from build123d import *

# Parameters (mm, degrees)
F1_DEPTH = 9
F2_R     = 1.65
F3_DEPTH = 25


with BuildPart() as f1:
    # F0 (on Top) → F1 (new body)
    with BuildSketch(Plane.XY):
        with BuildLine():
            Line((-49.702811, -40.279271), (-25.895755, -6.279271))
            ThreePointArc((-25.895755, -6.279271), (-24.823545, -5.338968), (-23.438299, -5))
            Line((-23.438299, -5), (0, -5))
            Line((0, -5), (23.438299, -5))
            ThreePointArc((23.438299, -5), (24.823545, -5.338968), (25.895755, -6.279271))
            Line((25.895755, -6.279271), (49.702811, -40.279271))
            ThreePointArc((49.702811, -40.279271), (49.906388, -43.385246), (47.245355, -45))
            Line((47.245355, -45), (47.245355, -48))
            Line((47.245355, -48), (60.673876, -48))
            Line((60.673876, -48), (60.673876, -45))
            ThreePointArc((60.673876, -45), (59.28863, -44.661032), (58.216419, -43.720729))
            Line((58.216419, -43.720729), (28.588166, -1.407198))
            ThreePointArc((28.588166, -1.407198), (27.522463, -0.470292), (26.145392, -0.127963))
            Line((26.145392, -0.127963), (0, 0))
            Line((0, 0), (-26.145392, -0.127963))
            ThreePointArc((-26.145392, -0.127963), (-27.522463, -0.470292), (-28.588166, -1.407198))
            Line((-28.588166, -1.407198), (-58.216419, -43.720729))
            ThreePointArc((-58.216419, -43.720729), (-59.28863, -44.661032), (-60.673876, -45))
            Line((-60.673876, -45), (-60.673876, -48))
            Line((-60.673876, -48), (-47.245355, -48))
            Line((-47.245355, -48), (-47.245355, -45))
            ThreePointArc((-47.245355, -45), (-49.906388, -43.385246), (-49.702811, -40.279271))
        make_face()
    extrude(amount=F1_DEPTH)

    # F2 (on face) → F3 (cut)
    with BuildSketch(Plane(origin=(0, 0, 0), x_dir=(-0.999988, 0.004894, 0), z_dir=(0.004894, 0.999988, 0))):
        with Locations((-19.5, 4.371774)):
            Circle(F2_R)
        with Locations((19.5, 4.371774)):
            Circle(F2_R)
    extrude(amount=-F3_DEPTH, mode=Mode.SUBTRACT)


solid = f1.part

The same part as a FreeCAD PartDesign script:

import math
import FreeCAD as App
import Part
import Sketcher
from FreeCAD import Vector
Q = App.Units.Quantity

doc = App.newDocument("Part")
params = doc.addObject("Spreadsheet::Sheet", "Params")
for row, (alias, value) in enumerate([
    ("sketch1_radius", "3.000002 mm"),
    ("sketch1_radius2", "2.999999 mm"),
    ("sketch1_height", "3 mm"),
    ("pad1_length", "9 mm"),
    ("sketch2_diameter", "3.3 mm"),
    ("pocket1_length", "25 mm"),
], start=1):
    params.set(f"A{row}", alias)
    params.set(f"B{row}", "=" + value)
    params.setAlias(f"B{row}", alias)

body = doc.addObject("PartDesign::Body", "Body")

# Sketch on XY plane
sketch1 = body.newObject("Sketcher::SketchObject", "Sketch")
sketch1.AttachmentSupport = (doc.getObject("XY_Plane"), [""])
sketch1.MapMode = "FlatFace"
sketch1.addGeometry([
    Part.LineSegment(Vector(-49.7, -40.3, 0), Vector(-25.9, -6.3, 0)),  # 0
    Part.ArcOfCircle(Part.Circle(Vector(-23.4, -8, 0), Vector(0, 0, 1), 3), math.radians(90), math.radians(145)),  # 1
    Part.LineSegment(Vector(-23.4, -5, 0), Vector(23.4, -5, 0)),  # 2
    Part.ArcOfCircle(Part.Circle(Vector(23.4, -8, 0), Vector(0, 0, 1), 3), math.radians(35), math.radians(90)),  # 3
    Part.LineSegment(Vector(25.9, -6.3, 0), Vector(49.7, -40.3, 0)),  # 4
    Part.ArcOfCircle(Part.Circle(Vector(47.2, -42, 0), Vector(0, 0, 1), 3), math.radians(-90), math.radians(35)),  # 5
    Part.LineSegment(Vector(47.2, -45, 0), Vector(47.2, -48, 0)),  # 6
    Part.LineSegment(Vector(47.2, -48, 0), Vector(60.7, -48, 0)),  # 7
    Part.LineSegment(Vector(60.7, -48, 0), Vector(60.7, -45, 0)),  # 8
    Part.ArcOfCircle(Part.Circle(Vector(60.7, -42, 0), Vector(0, 0, 1), 3), math.radians(-145), math.radians(-90)),  # 9
    Part.LineSegment(Vector(58.2, -43.7, 0), Vector(28.6, -1.4, 0)),  # 10
    Part.ArcOfCircle(Part.Circle(Vector(26.1, -3.1, 0), Vector(0, 0, 1), 3), math.radians(35), math.radians(90)),  # 11
    Part.LineSegment(Vector(26.1, -0.1, 0), Vector(0, 0, 0)),  # 12
    Part.LineSegment(Vector(0, 0, 0), Vector(-26.1, -0.1, 0)),  # 13
    Part.ArcOfCircle(Part.Circle(Vector(-26.1, -3.1, 0), Vector(0, 0, 1), 3), math.radians(90), math.radians(145)),  # 14
    Part.LineSegment(Vector(-28.6, -1.4, 0), Vector(-58.2, -43.7, 0)),  # 15
    Part.ArcOfCircle(Part.Circle(Vector(-60.7, -42, 0), Vector(0, 0, 1), 3), math.radians(-90), math.radians(-35)),  # 16
    Part.LineSegment(Vector(-60.7, -45, 0), Vector(-60.7, -48, 0)),  # 17
    Part.LineSegment(Vector(-60.7, -48, 0), Vector(-47.2, -48, 0)),  # 18
    Part.LineSegment(Vector(-47.2, -48, 0), Vector(-47.2, -45, 0)),  # 19
    Part.ArcOfCircle(Part.Circle(Vector(-47.2, -42, 0), Vector(0, 0, 1), 3), math.radians(145), math.radians(270)),  # 20
], False)
sketch1.addConstraint([
    Sketcher.Constraint("Tangent", 0, 2, 1, 2),
    Sketcher.Constraint("Tangent", 1, 1, 2, 1),
    Sketcher.Constraint("Tangent", 2, 2, 3, 2),
    Sketcher.Constraint("Tangent", 3, 1, 4, 1),
    Sketcher.Constraint("Tangent", 4, 2, 5, 2),
    Sketcher.Constraint("Coincident", 5, 1, 6, 1),
    Sketcher.Constraint("Coincident", 6, 2, 7, 1),
    Sketcher.Constraint("Coincident", 7, 2, 8, 1),
    Sketcher.Constraint("Coincident", 8, 2, 9, 2),
    Sketcher.Constraint("Tangent", 9, 1, 10, 1),
    Sketcher.Constraint("Tangent", 10, 2, 11, 1),
    Sketcher.Constraint("Tangent", 11, 2, 12, 1),
    Sketcher.Constraint("Coincident", 12, 2, 13, 1),
    Sketcher.Constraint("Tangent", 13, 2, 14, 1),
    Sketcher.Constraint("Tangent", 14, 2, 15, 1),
    Sketcher.Constraint("Tangent", 15, 2, 16, 2),
    Sketcher.Constraint("Coincident", 16, 1, 17, 1),
    Sketcher.Constraint("Coincident", 17, 2, 18, 1),
    Sketcher.Constraint("Coincident", 18, 2, 19, 1),
    Sketcher.Constraint("Coincident", 19, 2, 20, 2),
    Sketcher.Constraint("Tangent", 20, 1, 0, 1),
    Sketcher.Constraint("Horizontal", 2),
    Sketcher.Constraint("Vertical", 6),
    Sketcher.Constraint("Horizontal", 7),
    Sketcher.Constraint("Vertical", 8),
    Sketcher.Constraint("Vertical", 17),
    Sketcher.Constraint("Horizontal", 18),
    Sketcher.Constraint("Vertical", 19),
    Sketcher.Constraint("Coincident", 12, 2, -1, 1),
    Sketcher.Constraint("Equal", 1, 3),
    Sketcher.Constraint("Equal", 5, 11),
    Sketcher.Constraint("Equal", 11, 14),
    Sketcher.Constraint("Equal", 9, 16),
    Sketcher.Constraint("Equal", 14, 20),
    Sketcher.Constraint("Symmetric", 11, 3, 14, 3, -2),
    Sketcher.Constraint("Symmetric", 9, 3, 16, 3, -2),
    Sketcher.Constraint("Symmetric", 5, 3, 20, 3, -2),
    Sketcher.Constraint("Symmetric", 7, 2, 17, 2, -2),
    Sketcher.Constraint("Parallel", 4, 10),
    Sketcher.Constraint("Parallel", 0, 15),
    Sketcher.Constraint("Horizontal", 5, 1, 8, 2),
    Sketcher.Constraint("Vertical", 20, 3, 18, 2),
    Sketcher.Constraint("Equal", 7, 18),
    Sketcher.Constraint("Radius", 1, 3.000002),
    Sketcher.Constraint("Radius", 5, 2.999999),
    Sketcher.Constraint("DistanceY", 6, 2, 6, 1, 3.0),
    Sketcher.Constraint("Angle", 0, Q("55 deg")),
    Sketcher.Constraint("DistanceY", 1, 3, -1, 1, 8.000002),
    Sketcher.Constraint("DistanceY", 5, 3, -1, 1, 42.000001),
    Sketcher.Constraint("Radius", 9, 3.000005),
    Sketcher.Constraint("DistanceX", 7, 1, 7, 2, 13.428521),
    Sketcher.Constraint("DistanceX", 1, 1, -1, 1, 23.438299),
    Sketcher.Constraint("DistanceY", 14, 2, -1, 1, 1.407198),
    Sketcher.Constraint("DistanceX", -1, 1, 9, 3, 60.673878),
])
sketch1.setExpression("Constraints[43]", "Params.sketch1_radius")
sketch1.setExpression("Constraints[44]", "Params.sketch1_radius2")
sketch1.setExpression("Constraints[45]", "Params.sketch1_height")
pad1 = body.newObject("PartDesign::Pad", "Pad")
pad1.Profile = sketch1
pad1.setExpression("Length", "Params.pad1_length")

# Sketch on an angled plane
sketch2 = body.newObject("Sketcher::SketchObject", "Sketch001")
sketch2.Placement = App.Placement(Vector(0, 0, 0), App.Rotation(Vector(-0.999988024, 0.004894, 0), Vector(0, 0, 0.999999999), Vector(0.004894, 0.999988024, 0), "ZXY"))
sketch2.addGeometry([
    Part.Circle(Vector(-19.5, 4.4, 0), Vector(0, 0, 1), 1.6),
    Part.Circle(Vector(19.5, 4.4, 0), Vector(0, 0, 1), 1.6),
], False)
sketch2.addConstraint([
    Sketcher.Constraint("Equal", 0, 1),
    Sketcher.Constraint("Symmetric", 0, 3, 1, 3, -2),
    Sketcher.Constraint("Diameter", 0, 3.3),
    Sketcher.Constraint("DistanceX", 0, 3, 1, 3, 39.0),
    Sketcher.Constraint("DistanceY", -1, 1, 0, 3, 4.371774),
])
sketch2.setExpression("Constraints[2]", "Params.sketch2_diameter")
pocket1 = body.newObject("PartDesign::Pocket", "Pocket")
pocket1.Profile = sketch2
pocket1.setExpression("Length", "Params.pocket1_length")

doc.recompute()
